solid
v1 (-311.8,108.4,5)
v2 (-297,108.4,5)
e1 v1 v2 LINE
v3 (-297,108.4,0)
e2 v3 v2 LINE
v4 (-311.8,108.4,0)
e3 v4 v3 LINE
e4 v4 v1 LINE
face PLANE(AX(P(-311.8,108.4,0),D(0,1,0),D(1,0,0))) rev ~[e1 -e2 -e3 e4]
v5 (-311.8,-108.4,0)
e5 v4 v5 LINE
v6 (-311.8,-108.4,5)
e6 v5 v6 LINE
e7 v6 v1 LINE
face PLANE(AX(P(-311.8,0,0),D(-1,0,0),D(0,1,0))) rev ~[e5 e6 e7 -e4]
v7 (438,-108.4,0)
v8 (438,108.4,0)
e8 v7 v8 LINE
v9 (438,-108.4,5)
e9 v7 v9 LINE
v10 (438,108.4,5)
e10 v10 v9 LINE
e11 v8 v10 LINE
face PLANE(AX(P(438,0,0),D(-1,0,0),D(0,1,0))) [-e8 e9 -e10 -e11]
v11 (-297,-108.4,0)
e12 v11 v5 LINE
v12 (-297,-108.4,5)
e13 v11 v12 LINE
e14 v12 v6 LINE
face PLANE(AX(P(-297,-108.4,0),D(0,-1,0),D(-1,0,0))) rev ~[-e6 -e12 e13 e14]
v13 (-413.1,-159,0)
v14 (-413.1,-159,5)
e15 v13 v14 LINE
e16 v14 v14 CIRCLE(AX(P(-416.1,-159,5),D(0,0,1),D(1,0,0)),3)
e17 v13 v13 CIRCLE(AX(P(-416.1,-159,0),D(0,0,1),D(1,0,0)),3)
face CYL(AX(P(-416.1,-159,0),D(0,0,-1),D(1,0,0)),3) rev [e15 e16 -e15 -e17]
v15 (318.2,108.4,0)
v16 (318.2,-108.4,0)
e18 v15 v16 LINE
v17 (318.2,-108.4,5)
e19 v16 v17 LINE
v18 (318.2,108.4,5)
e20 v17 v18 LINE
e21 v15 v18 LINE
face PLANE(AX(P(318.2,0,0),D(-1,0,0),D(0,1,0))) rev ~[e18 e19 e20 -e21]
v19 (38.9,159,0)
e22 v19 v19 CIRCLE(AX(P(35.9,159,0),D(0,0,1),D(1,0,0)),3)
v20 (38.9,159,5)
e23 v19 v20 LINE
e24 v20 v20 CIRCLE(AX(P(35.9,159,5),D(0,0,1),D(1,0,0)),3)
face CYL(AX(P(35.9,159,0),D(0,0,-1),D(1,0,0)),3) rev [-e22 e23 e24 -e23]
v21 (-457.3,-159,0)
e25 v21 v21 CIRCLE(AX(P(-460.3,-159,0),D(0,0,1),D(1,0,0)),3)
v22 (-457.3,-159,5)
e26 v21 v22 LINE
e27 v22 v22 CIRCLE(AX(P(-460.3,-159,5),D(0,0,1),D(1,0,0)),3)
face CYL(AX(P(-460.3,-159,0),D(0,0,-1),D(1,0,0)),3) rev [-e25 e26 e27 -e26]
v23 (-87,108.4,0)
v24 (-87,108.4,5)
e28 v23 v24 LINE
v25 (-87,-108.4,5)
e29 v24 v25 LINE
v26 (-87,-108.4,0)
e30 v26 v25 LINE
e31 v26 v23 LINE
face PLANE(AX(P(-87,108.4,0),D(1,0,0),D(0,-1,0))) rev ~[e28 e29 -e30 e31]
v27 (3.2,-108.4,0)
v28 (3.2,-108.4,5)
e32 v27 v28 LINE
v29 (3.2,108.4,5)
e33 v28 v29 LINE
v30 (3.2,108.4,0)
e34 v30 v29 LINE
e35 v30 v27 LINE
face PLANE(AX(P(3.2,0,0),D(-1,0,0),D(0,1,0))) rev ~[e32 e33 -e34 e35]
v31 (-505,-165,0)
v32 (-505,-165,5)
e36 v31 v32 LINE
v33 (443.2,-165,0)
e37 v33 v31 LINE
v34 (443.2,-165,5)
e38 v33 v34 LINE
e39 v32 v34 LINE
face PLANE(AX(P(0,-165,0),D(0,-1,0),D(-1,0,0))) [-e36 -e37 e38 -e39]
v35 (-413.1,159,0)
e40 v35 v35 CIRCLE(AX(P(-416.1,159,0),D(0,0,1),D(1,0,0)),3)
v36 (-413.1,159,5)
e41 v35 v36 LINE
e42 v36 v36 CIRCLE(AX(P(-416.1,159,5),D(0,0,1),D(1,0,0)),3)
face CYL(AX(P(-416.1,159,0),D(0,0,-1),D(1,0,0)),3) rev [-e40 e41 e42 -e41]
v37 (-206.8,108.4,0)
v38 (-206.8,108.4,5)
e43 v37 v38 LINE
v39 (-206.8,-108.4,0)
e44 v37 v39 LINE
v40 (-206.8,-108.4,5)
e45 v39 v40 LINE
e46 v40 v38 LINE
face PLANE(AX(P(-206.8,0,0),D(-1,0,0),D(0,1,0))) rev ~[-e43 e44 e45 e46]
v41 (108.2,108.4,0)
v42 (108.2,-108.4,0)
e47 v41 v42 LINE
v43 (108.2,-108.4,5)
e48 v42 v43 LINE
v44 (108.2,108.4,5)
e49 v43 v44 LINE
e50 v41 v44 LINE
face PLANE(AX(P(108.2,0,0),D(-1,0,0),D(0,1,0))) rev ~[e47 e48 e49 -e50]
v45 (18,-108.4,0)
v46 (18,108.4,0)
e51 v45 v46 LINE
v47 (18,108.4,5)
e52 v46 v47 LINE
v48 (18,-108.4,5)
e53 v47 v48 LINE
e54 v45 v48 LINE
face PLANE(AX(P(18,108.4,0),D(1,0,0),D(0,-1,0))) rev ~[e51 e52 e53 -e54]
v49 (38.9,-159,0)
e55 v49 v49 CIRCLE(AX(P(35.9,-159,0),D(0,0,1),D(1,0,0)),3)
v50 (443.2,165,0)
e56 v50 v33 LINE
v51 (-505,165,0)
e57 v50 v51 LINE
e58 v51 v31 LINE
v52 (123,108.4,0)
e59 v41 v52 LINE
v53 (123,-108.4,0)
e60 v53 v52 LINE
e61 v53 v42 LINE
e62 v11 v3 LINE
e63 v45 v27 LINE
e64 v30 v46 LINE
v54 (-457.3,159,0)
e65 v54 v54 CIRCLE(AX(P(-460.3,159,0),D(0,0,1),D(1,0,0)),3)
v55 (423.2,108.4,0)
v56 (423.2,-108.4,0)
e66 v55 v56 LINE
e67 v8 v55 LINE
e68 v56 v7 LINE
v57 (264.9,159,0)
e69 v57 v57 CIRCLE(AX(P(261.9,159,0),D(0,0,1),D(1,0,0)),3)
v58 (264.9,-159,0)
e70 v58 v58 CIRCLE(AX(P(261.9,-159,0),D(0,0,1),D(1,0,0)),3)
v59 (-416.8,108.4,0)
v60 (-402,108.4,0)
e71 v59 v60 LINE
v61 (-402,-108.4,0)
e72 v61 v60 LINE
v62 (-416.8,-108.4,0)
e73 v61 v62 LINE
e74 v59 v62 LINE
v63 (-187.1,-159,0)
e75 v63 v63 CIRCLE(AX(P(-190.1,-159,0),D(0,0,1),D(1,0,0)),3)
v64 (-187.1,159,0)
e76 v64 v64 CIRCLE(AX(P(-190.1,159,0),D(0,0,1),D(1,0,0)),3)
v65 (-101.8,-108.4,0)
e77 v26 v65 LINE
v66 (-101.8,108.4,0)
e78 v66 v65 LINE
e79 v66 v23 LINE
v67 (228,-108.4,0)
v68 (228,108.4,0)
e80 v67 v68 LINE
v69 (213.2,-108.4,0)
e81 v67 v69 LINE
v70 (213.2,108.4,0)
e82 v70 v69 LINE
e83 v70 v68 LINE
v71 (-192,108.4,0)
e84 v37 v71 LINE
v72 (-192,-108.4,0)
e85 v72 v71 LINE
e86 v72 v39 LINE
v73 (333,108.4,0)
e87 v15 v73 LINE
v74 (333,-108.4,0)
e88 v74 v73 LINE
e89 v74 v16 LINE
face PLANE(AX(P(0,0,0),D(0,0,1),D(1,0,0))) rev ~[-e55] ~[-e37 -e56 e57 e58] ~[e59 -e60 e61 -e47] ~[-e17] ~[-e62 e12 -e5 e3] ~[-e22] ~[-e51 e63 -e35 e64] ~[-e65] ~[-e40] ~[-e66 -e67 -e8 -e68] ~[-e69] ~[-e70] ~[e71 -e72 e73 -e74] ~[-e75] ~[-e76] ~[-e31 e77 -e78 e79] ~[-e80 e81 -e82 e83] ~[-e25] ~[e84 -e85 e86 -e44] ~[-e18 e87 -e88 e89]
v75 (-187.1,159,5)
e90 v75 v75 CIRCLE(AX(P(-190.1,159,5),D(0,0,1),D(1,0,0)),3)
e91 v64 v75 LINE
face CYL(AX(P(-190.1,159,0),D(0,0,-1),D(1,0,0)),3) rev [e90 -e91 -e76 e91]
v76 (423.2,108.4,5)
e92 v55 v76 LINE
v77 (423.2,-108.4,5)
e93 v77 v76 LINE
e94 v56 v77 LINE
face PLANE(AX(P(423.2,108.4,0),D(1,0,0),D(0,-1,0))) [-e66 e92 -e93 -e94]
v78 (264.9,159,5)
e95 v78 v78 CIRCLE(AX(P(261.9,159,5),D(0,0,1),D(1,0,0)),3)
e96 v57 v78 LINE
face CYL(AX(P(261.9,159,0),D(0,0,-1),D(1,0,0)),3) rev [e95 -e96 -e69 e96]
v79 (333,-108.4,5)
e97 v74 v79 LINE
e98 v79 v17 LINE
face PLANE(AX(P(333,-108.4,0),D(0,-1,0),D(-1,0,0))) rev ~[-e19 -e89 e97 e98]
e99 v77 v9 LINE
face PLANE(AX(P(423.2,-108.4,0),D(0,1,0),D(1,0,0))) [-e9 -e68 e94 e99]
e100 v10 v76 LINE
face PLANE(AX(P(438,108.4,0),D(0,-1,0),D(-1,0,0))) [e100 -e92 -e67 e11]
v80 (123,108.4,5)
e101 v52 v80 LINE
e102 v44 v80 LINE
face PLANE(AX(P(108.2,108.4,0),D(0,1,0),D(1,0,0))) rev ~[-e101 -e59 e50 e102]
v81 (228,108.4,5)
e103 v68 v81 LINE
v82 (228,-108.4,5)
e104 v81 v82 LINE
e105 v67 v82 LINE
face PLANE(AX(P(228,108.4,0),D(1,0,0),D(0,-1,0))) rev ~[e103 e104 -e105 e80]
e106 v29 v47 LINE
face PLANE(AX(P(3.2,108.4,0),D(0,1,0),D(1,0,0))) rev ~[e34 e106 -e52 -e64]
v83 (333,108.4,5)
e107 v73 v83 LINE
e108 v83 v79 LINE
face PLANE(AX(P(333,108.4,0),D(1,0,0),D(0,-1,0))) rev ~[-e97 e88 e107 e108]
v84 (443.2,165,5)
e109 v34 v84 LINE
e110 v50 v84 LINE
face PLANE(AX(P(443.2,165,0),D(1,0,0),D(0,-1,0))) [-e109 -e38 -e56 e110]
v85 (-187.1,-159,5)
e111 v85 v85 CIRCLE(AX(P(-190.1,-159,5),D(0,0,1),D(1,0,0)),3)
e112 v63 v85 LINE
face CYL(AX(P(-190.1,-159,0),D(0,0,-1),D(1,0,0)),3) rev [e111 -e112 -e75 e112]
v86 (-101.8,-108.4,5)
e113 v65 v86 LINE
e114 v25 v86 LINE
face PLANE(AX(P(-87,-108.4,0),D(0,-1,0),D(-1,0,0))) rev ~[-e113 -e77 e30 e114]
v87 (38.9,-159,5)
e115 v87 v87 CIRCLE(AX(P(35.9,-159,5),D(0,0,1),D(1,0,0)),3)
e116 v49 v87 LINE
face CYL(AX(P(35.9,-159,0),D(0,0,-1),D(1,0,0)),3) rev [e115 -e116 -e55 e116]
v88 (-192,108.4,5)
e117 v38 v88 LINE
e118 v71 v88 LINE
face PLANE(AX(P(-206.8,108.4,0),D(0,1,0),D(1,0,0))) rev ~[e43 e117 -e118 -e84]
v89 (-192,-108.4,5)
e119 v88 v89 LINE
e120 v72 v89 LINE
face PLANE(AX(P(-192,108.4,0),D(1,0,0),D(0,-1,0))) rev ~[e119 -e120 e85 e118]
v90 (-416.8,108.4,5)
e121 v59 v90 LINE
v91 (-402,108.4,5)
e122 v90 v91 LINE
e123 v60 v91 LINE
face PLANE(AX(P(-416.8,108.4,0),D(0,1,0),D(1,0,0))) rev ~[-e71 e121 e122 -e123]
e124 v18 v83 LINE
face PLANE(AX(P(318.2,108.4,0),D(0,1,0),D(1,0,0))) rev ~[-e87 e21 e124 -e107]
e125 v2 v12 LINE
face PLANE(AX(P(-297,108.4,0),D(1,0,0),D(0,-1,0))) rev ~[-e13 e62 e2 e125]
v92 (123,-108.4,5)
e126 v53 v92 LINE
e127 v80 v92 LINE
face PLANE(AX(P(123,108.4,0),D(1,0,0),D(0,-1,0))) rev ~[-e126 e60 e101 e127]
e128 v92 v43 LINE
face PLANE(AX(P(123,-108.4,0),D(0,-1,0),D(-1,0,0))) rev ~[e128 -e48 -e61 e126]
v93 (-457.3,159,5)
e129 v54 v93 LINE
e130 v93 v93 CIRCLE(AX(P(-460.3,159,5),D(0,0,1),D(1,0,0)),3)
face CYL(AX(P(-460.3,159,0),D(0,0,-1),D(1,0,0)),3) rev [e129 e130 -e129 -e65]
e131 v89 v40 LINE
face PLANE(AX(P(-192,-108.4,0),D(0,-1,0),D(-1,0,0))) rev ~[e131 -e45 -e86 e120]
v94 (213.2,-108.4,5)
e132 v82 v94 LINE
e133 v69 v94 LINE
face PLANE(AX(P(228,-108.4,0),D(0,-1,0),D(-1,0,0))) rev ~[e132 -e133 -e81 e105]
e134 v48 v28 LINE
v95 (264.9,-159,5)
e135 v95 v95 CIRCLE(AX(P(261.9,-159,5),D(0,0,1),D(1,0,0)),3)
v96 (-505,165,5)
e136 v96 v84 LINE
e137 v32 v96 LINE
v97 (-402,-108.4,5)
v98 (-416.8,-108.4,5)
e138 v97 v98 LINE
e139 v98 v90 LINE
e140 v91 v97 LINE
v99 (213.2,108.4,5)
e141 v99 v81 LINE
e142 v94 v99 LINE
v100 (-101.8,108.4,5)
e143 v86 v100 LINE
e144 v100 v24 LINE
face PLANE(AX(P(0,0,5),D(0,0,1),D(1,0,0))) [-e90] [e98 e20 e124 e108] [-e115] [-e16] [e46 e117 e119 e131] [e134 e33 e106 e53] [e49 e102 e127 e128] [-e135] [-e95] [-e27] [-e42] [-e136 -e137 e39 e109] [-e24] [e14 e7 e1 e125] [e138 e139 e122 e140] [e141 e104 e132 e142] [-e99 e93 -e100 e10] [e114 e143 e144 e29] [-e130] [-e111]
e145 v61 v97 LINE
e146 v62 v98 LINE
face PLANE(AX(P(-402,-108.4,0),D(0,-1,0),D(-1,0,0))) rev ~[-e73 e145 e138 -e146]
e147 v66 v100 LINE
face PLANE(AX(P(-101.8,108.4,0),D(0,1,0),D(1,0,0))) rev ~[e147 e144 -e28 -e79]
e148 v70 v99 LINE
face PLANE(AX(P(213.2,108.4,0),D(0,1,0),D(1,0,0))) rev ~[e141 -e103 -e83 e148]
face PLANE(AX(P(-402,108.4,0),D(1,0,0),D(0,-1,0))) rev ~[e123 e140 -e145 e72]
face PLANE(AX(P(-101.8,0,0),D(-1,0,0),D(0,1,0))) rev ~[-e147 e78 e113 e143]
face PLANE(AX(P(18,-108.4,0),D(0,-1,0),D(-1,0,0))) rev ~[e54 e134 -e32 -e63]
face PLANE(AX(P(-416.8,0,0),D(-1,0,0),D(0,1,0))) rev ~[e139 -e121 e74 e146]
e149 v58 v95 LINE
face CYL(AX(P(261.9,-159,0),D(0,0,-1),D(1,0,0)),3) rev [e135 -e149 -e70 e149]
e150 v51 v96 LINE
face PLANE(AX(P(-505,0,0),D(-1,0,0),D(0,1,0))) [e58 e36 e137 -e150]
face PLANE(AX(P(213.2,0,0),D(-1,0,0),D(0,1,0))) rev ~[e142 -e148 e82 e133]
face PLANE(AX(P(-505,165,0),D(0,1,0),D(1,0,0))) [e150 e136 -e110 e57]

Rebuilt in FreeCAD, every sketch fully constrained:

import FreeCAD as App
import Part
import Sketcher
Q = App.Units.Quantity

doc = App.newDocument("Part")
params = doc.addObject("Spreadsheet::Sheet", "Params")
for row, (alias, value) in enumerate([
    ("sketch1_diameter", "6 mm"),
    ("sketch1_height", "330 mm"),
    ("sketch1_width", "14.8 mm"),
    ("sketch1_height2", "216.8 mm"),
    ("pad1_length", "5 mm"),
], start=1):
    params.set(f"A{row}", alias)
    params.set(f"B{row}", "=" + value)
    params.setAlias(f"B{row}", alias)

body = doc.addObject("PartDesign::Body", "Body")

# Sketch on XY plane
sketch1 = body.newObject("Sketcher::SketchObject", "Sketch")
sketch1.AttachmentSupport = (doc.getObject("XY_Plane"), [""])
sketch1.MapMode = "FlatFace"
sketch1.addGeometry([
    Part.LineSegment(App.Vector(-505, 165, 0), App.Vector(-505, -165, 0)),  # 0
    Part.LineSegment(App.Vector(-505, -165, 0), App.Vector(443.2, -165, 0)),  # 1
    Part.LineSegment(App.Vector(443.2, -165, 0), App.Vector(443.2, 165, 0)),  # 2
    Part.LineSegment(App.Vector(443.2, 165, 0), App.Vector(-505, 165, 0)),  # 3
    Part.LineSegment(App.Vector(-87, 108.4, 0), App.Vector(-87, -108.4, 0)),  # 4
    Part.LineSegment(App.Vector(-87, -108.4, 0), App.Vector(-101.8, -108.4, 0)),  # 5
    Part.LineSegment(App.Vector(-101.8, -108.4, 0), App.Vector(-101.8, 108.4, 0)),  # 6
    Part.LineSegment(App.Vector(-101.8, 108.4, 0), App.Vector(-87, 108.4, 0)),  # 7
    Part.LineSegment(App.Vector(-192, 108.4, 0), App.Vector(-192, -108.4, 0)),  # 8
    Part.LineSegment(App.Vector(-192, -108.4, 0), App.Vector(-206.8, -108.4, 0)),  # 9
    Part.LineSegment(App.Vector(-206.8, -108.4, 0), App.Vector(-206.8, 108.4, 0)),  # 10
    Part.LineSegment(App.Vector(-206.8, 108.4, 0), App.Vector(-192, 108.4, 0)),  # 11
    Part.LineSegment(App.Vector(-297, 108.4, 0), App.Vector(-297, -108.4, 0)),  # 12
    Part.LineSegment(App.Vector(-297, -108.4, 0), App.Vector(-311.8, -108.4, 0)),  # 13
    Part.LineSegment(App.Vector(-311.8, -108.4, 0), App.Vector(-311.8, 108.4, 0)),  # 14
    Part.LineSegment(App.Vector(-311.8, 108.4, 0), App.Vector(-297, 108.4, 0)),  # 15
    Part.LineSegment(App.Vector(-402, 108.4, 0), App.Vector(-402, -108.4, 0)),  # 16
    Part.LineSegment(App.Vector(-402, -108.4, 0), App.Vector(-416.8, -108.4, 0)),  # 17
    Part.LineSegment(App.Vector(-416.8, -108.4, 0), App.Vector(-416.8, 108.4, 0)),  # 18
    Part.LineSegment(App.Vector(-416.8, 108.4, 0), App.Vector(-402, 108.4, 0)),  # 19
    Part.Circle(App.Vector(-460.3, 159, 0), App.Vector(0, 0, 1), 3),  # 20
    Part.Circle(App.Vector(-416.1, 159, 0), App.Vector(0, 0, 1), 3),  # 21
    Part.Circle(App.Vector(-190.1, 159, 0), App.Vector(0, 0, 1), 3),  # 22
    Part.LineSegment(App.Vector(438, 108.4, 0), App.Vector(438, -108.4, 0)),  # 23
    Part.LineSegment(App.Vector(438, -108.4, 0), App.Vector(423.2, -108.4, 0)),  # 24
    Part.LineSegment(App.Vector(423.2, -108.4, 0), App.Vector(423.2, 108.4, 0)),  # 25
    Part.LineSegment(App.Vector(423.2, 108.4, 0), App.Vector(438, 108.4, 0)),  # 26
    Part.LineSegment(App.Vector(333, 108.4, 0), App.Vector(333, -108.4, 0)),  # 27
    Part.LineSegment(App.Vector(333, -108.4, 0), App.Vector(318.2, -108.4, 0)),  # 28
    Part.LineSegment(App.Vector(318.2, -108.4, 0), App.Vector(318.2, 108.4, 0)),  # 29
    Part.LineSegment(App.Vector(318.2, 108.4, 0), App.Vector(333, 108.4, 0)),  # 30
    Part.LineSegment(App.Vector(228, 108.4, 0), App.Vector(228, -108.4, 0)),  # 31
    Part.LineSegment(App.Vector(228, -108.4, 0), App.Vector(213.2, -108.4, 0)),  # 32
    Part.LineSegment(App.Vector(213.2, -108.4, 0), App.Vector(213.2, 108.4, 0)),  # 33
    Part.LineSegment(App.Vector(213.2, 108.4, 0), App.Vector(228, 108.4, 0)),  # 34
    Part.LineSegment(App.Vector(123, 108.4, 0), App.Vector(123, -108.4, 0)),  # 35
    Part.LineSegment(App.Vector(123, -108.4, 0), App.Vector(108.2, -108.4, 0)),  # 36
    Part.LineSegment(App.Vector(108.2, -108.4, 0), App.Vector(108.2, 108.4, 0)),  # 37
    Part.LineSegment(App.Vector(108.2, 108.4, 0), App.Vector(123, 108.4, 0)),  # 38
    Part.LineSegment(App.Vector(18, 108.4, 0), App.Vector(18, -108.4, 0)),  # 39
    Part.LineSegment(App.Vector(18, -108.4, 0), App.Vector(3.2, -108.4, 0)),  # 40
    Part.LineSegment(App.Vector(3.2, -108.4, 0), App.Vector(3.2, 108.4, 0)),  # 41
    Part.LineSegment(App.Vector(3.2, 108.4, 0), App.Vector(18, 108.4, 0)),  # 42
    Part.Circle(App.Vector(261.9, 159, 0), App.Vector(0, 0, 1), 3),  # 43
    Part.Circle(App.Vector(35.9, 159, 0), App.Vector(0, 0, 1), 3),  # 44
    Part.Circle(App.Vector(-460.3, -159, 0), App.Vector(0, 0, 1), 3),  # 45
    Part.Circle(App.Vector(-416.1, -159, 0), App.Vector(0, 0, 1), 3),  # 46
    Part.Circle(App.Vector(-190.1, -159, 0), App.Vector(0, 0, 1), 3),  # 47
    Part.Circle(App.Vector(261.9, -159, 0), App.Vector(0, 0, 1), 3),  # 48
    Part.Circle(App.Vector(35.9, -159, 0), App.Vector(0, 0, 1), 3),  # 49
], False)
sketch1.addConstraint([
    Sketcher.Constraint("Coincident", 0, 2, 1, 1),
    Sketcher.Constraint("Coincident", 1, 2, 2, 1),
    Sketcher.Constraint("Coincident", 2, 2, 3, 1),
    Sketcher.Constraint("Coincident", 3, 2, 0, 1),
    Sketcher.Constraint("Coincident", 4, 2, 5, 1),
    Sketcher.Constraint("Coincident", 5, 2, 6, 1),
    Sketcher.Constraint("Coincident", 6, 2, 7, 1),
    Sketcher.Constraint("Coincident", 7, 2, 4, 1),
    Sketcher.Constraint("Coincident", 8, 2, 9, 1),
    Sketcher.Constraint("Coincident", 9, 2, 10, 1),
    Sketcher.Constraint("Coincident", 10, 2, 11, 1),
    Sketcher.Constraint("Coincident", 11, 2, 8, 1),
    Sketcher.Constraint("Coincident", 12, 2, 13, 1),
    Sketcher.Constraint("Coincident", 13, 2, 14, 1),
    Sketcher.Constraint("Coincident", 14, 2, 15, 1),
    Sketcher.Constraint("Coincident", 15, 2, 12, 1),
    Sketcher.Constraint("Coincident", 16, 2, 17, 1),
    Sketcher.Constraint("Coincident", 17, 2, 18, 1),
    Sketcher.Constraint("Coincident", 18, 2, 19, 1),
    Sketcher.Constraint("Coincident", 19, 2, 16, 1),
    Sketcher.Constraint("Coincident", 23, 2, 24, 1),
    Sketcher.Constraint("Coincident", 24, 2, 25, 1),
    Sketcher.Constraint("Coincident", 25, 2, 26, 1),
    Sketcher.Constraint("Coincident", 26, 2, 23, 1),
    Sketcher.Constraint("Coincident", 27, 2, 28, 1),
    Sketcher.Constraint("Coincident", 28, 2, 29, 1),
    Sketcher.Constraint("Coincident", 29, 2, 30, 1),
    Sketcher.Constraint("Coincident", 30, 2, 27, 1),
    Sketcher.Constraint("Coincident", 31, 2, 32, 1),
    Sketcher.Constraint("Coincident", 32, 2, 33, 1),
    Sketcher.Constraint("Coincident", 33, 2, 34, 1),
    Sketcher.Constraint("Coincident", 34, 2, 31, 1),
    Sketcher.Constraint("Coincident", 35, 2, 36, 1),
    Sketcher.Constraint("Coincident", 36, 2, 37, 1),
    Sketcher.Constraint("Coincident", 37, 2, 38, 1),
    Sketcher.Constraint("Coincident", 38, 2, 35, 1),
    Sketcher.Constraint("Coincident", 39, 2, 40, 1),
    Sketcher.Constraint("Coincident", 40, 2, 41, 1),
    Sketcher.Constraint("Coincident", 41, 2, 42, 1),
    Sketcher.Constraint("Coincident", 42, 2, 39, 1),
    Sketcher.Constraint("Vertical", 0),
    Sketcher.Constraint("Horizontal", 1),
    Sketcher.Constraint("Vertical", 2),
    Sketcher.Constraint("Horizontal", 3),
    Sketcher.Constraint("Vertical", 4),
    Sketcher.Constraint("Horizontal", 5),
    Sketcher.Constraint("Vertical", 6),
    Sketcher.Constraint("Horizontal", 7),
    Sketcher.Constraint("Vertical", 8),
    Sketcher.Constraint("Horizontal", 9),
    Sketcher.Constraint("Vertical", 10),
    Sketcher.Constraint("Horizontal", 11),
    Sketcher.Constraint("Vertical", 12),
    Sketcher.Constraint("Horizontal", 13),
    Sketcher.Constraint("Vertical", 14),
    Sketcher.Constraint("Horizontal", 15),
    Sketcher.Constraint("Vertical", 16),
    Sketcher.Constraint("Horizontal", 17),
    Sketcher.Constraint("Vertical", 18),
    Sketcher.Constraint("Horizontal", 19),
    Sketcher.Constraint("Vertical", 23),
    Sketcher.Constraint("Horizontal", 24),
    Sketcher.Constraint("Vertical", 25),
    Sketcher.Constraint("Horizontal", 26),
    Sketcher.Constraint("Vertical", 27),
    Sketcher.Constraint("Horizontal", 28),
    Sketcher.Constraint("Vertical", 29),
    Sketcher.Constraint("Horizontal", 30),
    Sketcher.Constraint("Vertical", 31),
    Sketcher.Constraint("Horizontal", 32),
    Sketcher.Constraint("Vertical", 33),
    Sketcher.Constraint("Horizontal", 34),
    Sketcher.Constraint("Vertical", 35),
    Sketcher.Constraint("Horizontal", 36),
    Sketcher.Constraint("Vertical", 37),
    Sketcher.Constraint("Horizontal", 38),
    Sketcher.Constraint("Vertical", 39),
    Sketcher.Constraint("Horizontal", 40),
    Sketcher.Constraint("Vertical", 41),
    Sketcher.Constraint("Horizontal", 42),
    Sketcher.Constraint("Equal", 20, 21),
    Sketcher.Constraint("Equal", 21, 22),
    Sketcher.Constraint("Equal", 22, 43),
    Sketcher.Constraint("Equal", 43, 44),
    Sketcher.Constraint("Equal", 44, 45),
    Sketcher.Constraint("Equal", 45, 46),
    Sketcher.Constraint("Equal", 46, 47),
    Sketcher.Constraint("Equal", 47, 48),
    Sketcher.Constraint("Equal", 48, 49),
    Sketcher.Constraint("Symmetric", 20, 3, 45, 3, -1),
    Sketcher.Constraint("Symmetric", 21, 3, 46, 3, -1),
    Sketcher.Constraint("Symmetric", 22, 3, 47, 3, -1),
    Sketcher.Constraint("Symmetric", 43, 3, 48, 3, -1),
    Sketcher.Constraint("Symmetric", 44, 3, 49, 3, -1),
    Sketcher.Constraint("Horizontal", 20, 3, 21, 3),
    Sketcher.Constraint("Horizontal", 21, 3, 22, 3),
    Sketcher.Constraint("Horizontal", 22, 3, 43, 3),
    Sketcher.Constraint("Horizontal", 43, 3, 44, 3),
    Sketcher.Constraint("Horizontal", 5, 2, 8, 2),
    Sketcher.Constraint("Horizontal", 7, 2, 10, 2),
    Sketcher.Constraint("Horizontal", 9, 2, 12, 2),
    Sketcher.Constraint("Horizontal", 11, 2, 14, 2),
    Sketcher.Constraint("Horizontal", 13, 2, 16, 2),
    Sketcher.Constraint("Horizontal", 15, 2, 18, 2),
    Sketcher.Constraint("Horizontal", 17, 2, 23, 2),
    Sketcher.Constraint("Horizontal", 19, 2, 25, 2),
    Sketcher.Constraint("Horizontal", 24, 2, 27, 2),
    Sketcher.Constraint("Horizontal", 26, 2, 29, 2),
    Sketcher.Constraint("Horizontal", 28, 2, 31, 2),
    Sketcher.Constraint("Horizontal", 30, 2, 33, 2),
    Sketcher.Constraint("Horizontal", 32, 2, 35, 2),
    Sketcher.Constraint("Horizontal", 34, 2, 37, 2),
    Sketcher.Constraint("Horizontal", 36, 2, 39, 2),
    Sketcher.Constraint("Horizontal", 38, 2, 41, 2),
    Sketcher.Constraint("Equal", 7, 9),
    Sketcher.Constraint("Equal", 11, 13),
    Sketcher.Constraint("Equal", 15, 17),
    Sketcher.Constraint("Equal", 19, 24),
    Sketcher.Constraint("Equal", 26, 28),
    Sketcher.Constraint("Equal", 30, 32),
    Sketcher.Constraint("Equal", 34, 36),
    Sketcher.Constraint("Equal", 38, 40),
    Sketcher.Constraint("Diameter", 20, Q("6 mm")),
    Sketcher.Constraint("DistanceY", 0, 2, 0, 1, Q("330 mm")),
    Sketcher.Constraint("DistanceX", 5, 2, 5, 1, Q("14.8 mm")),
    Sketcher.Constraint("DistanceY", 4, 2, 4, 1, Q("216.8 mm")),
    Sketcher.Constraint("DistanceX", 0, 2, -1, 1, Q("505 mm")),
    Sketcher.Constraint("DistanceX", -1, 1, 23, 2, Q("438 mm")),
    Sketcher.Constraint("DistanceX", 21, 3, 22, 3, Q("226 mm")),
    Sketcher.Constraint("DistanceX", 44, 3, 43, 3, Q("226 mm")),
    Sketcher.Constraint("DistanceX", 22, 3, 44, 3, Q("226 mm")),
    Sketcher.Constraint("DistanceY", 0, 2, 45, 3, Q("6 mm")),
    Sketcher.Constraint("DistanceY", 43, 3, 2, 2, Q("6 mm")),
    Sketcher.Constraint("DistanceX", 8, 2, 4, 2, Q("105 mm")),
    Sketcher.Constraint("DistanceX", 12, 2, 8, 2, Q("105 mm")),
    Sketcher.Constraint("DistanceX", 16, 2, 12, 2, Q("105 mm")),
    Sketcher.Constraint("DistanceX", 27, 2, 23, 2, Q("105 mm")),
    Sketcher.Constraint("DistanceX", 31, 2, 27, 2, Q("105 mm")),
    Sketcher.Constraint("DistanceX", 35, 2, 31, 2, Q("105 mm")),
    Sketcher.Constraint("DistanceX", 4, 2, 39, 2, Q("105 mm")),
    Sketcher.Constraint("DistanceX", 39, 2, 35, 2, Q("105 mm")),
    Sketcher.Constraint("DistanceX", 0, 2, 45, 3, Q("44.7 mm")),
    Sketcher.Constraint("DistanceX", 0, 2, 46, 3, Q("88.9 mm")),
    Sketcher.Constraint("DistanceX", 23, 2, 1, 2, Q("5.2 mm")),
    Sketcher.Constraint("DistanceY", 4, 2, -1, 1, Q("108.4 mm")),
])
sketch1.setExpression("Constraints[122]", "Params.sketch1_diameter")
sketch1.setExpression("Constraints[123]", "Params.sketch1_height")
sketch1.setExpression("Constraints[124]", "Params.sketch1_width")
sketch1.setExpression("Constraints[125]", "Params.sketch1_height2")
pad1 = body.newObject("PartDesign::Pad", "Pad")
pad1.Profile = sketch1
pad1.setExpression("Length", "Params.pad1_length")

doc.recompute()
